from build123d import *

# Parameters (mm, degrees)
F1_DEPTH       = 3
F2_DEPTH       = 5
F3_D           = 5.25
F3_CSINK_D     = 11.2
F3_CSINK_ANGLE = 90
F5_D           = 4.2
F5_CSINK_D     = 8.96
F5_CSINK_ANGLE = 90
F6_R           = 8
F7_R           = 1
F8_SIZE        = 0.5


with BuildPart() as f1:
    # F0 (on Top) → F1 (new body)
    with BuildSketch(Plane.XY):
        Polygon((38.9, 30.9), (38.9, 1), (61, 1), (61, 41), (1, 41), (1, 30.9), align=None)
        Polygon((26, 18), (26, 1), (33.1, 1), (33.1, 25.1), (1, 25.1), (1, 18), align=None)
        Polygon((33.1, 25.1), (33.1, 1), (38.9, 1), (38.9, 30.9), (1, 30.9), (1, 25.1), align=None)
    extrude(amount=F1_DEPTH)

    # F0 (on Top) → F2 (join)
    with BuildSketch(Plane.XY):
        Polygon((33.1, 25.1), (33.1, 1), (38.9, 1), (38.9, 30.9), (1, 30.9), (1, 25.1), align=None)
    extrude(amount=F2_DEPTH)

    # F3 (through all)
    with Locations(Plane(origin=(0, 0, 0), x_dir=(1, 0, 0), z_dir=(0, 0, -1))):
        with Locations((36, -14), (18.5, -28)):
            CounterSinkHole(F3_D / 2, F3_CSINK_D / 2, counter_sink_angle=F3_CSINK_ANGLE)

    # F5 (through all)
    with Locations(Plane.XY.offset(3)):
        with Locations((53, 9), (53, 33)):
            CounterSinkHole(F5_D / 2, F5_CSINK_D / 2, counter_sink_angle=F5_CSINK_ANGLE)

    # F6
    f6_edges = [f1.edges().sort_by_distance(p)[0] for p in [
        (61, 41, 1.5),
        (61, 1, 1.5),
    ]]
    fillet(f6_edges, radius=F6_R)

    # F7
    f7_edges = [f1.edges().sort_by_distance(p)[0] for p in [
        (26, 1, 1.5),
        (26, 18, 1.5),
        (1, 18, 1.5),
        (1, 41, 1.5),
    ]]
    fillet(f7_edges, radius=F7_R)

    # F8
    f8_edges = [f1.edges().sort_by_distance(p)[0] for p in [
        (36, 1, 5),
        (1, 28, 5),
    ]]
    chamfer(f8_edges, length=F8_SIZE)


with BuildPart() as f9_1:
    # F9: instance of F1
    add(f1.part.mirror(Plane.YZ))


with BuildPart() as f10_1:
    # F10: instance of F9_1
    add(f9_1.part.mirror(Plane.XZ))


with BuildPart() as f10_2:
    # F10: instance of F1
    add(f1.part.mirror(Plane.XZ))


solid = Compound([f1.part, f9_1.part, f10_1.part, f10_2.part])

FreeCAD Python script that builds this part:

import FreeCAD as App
import Part
import Sketcher
Q = App.Units.Quantity


def edges_at(feature, points):
    """Names of the edges that pass closest to the given points."""
    edges = feature.Shape.Edges
    near = lambda p: min(range(len(edges)), key=lambda i: edges[i].distToShape(Part.Vertex(*p))[0])
    return sorted({f"Edge{near(p) + 1}" for p in points})


def add_polygon(sketch, points):
    """Adds a closed chain of lines whose ends are joined by coincident constraints."""
    first, n = sketch.GeometryCount, len(points)
    for a, b in zip(points, points[1:] + points[:1]):
        sketch.addGeometry(Part.LineSegment(App.Vector(*a, 0), App.Vector(*b, 0)), False)
    for i in range(n):
        sketch.addConstraint(Sketcher.Constraint("Coincident", first + i, 2, first + (i + 1) % n, 1))

doc = App.newDocument("Part")
params = doc.addObject("Spreadsheet::Sheet", "Params")
for row, (alias, value) in enumerate([
    ("sketch1_width", "60 mm"),
    ("sketch1_width2", "25 mm"),
    ("sketch1_height", "40 mm"),
    ("sketch1_height2", "23 mm"),
    ("pad1_length", "3 mm"),
    ("sketch2_width", "5.8 mm"),
    ("sketch2_width2", "37.9 mm"),
    ("sketch2_height", "24.1 mm"),
    ("pad2_length", "5 mm"),
    ("sketch3_diameter", "5.25 mm"),
    ("hole_diameter", "5.25 mm"),
    ("hole_csink_diameter", "11.2 mm"),
    ("sketch4_diameter", "4.2 mm"),
    ("hole2_diameter", "4.2 mm"),
    ("hole2_csink_diameter", "8.96 mm"),
    ("fillet_radius", "8 mm"),
    ("fillet2_radius", "1 mm"),
    ("chamfer_size", "0.5 mm"),
], start=1):
    params.set(f"A{row}", alias)
    params.set(f"B{row}", "=" + value)
    params.setAlias(f"B{row}", alias)

body = doc.addObject("PartDesign::Body", "Body")

sketch1 = doc.addObject("Sketcher::SketchObject", "Sketch")
body.addObject(sketch1)
sketch1.AttachmentSupport = (doc.XY_Plane, [""])
sketch1.MapMode = "FlatFace"
add_polygon(sketch1, [(61, 1), (61, 41), (1, 41), (1, 18), (26, 18), (26, 1)])
sketch1.addConstraint(Sketcher.Constraint("Vertical", 0))
sketch1.addConstraint(Sketcher.Constraint("Horizontal", 1))
sketch1.addConstraint(Sketcher.Constraint("Vertical", 2))
sketch1.addConstraint(Sketcher.Constraint("Horizontal", 3))
sketch1.addConstraint(Sketcher.Constraint("Vertical", 4))
sketch1.addConstraint(Sketcher.Constraint("Horizontal", 5))
sketch1.addConstraint(Sketcher.Constraint("DistanceX", 1, 2, 1, 1, Q("60 mm")))
sketch1.addConstraint(Sketcher.Constraint("DistanceX", 3, 1, 3, 2, Q("25 mm")))
sketch1.addConstraint(Sketcher.Constraint("DistanceY", 0, 1, 0, 2, Q("40 mm")))
sketch1.addConstraint(Sketcher.Constraint("DistanceY", 2, 2, 2, 1, Q("23 mm")))
sketch1.addConstraint(Sketcher.Constraint("DistanceX", -1, 1, 0, 2, Q("61 mm")))
sketch1.addConstraint(Sketcher.Constraint("DistanceY", -1, 1, 0, 2, Q("41 mm")))
sketch1.setExpression("Constraints[12]", "Params.sketch1_width")
sketch1.setExpression("Constraints[13]", "Params.sketch1_width2")
sketch1.setExpression("Constraints[14]", "Params.sketch1_height")
sketch1.setExpression("Constraints[15]", "Params.sketch1_height2")
pad1 = doc.addObject("PartDesign::Pad", "Pad")
body.addObject(pad1)
pad1.Profile = sketch1
pad1.setExpression("Length", "Params.pad1_length")

sketch2 = doc.addObject("Sketcher::SketchObject", "Sketch001")
body.addObject(sketch2)
sketch2.AttachmentSupport = (doc.XY_Plane, [""])
sketch2.MapMode = "FlatFace"
add_polygon(sketch2, [(33.1, 25.1), (33.1, 1), (38.9, 1), (38.9, 30.9), (1, 30.9), (1, 25.1)])
sketch2.addConstraint(Sketcher.Constraint("Vertical", 0))
sketch2.addConstraint(Sketcher.Constraint("Horizontal", 1))
sketch2.addConstraint(Sketcher.Constraint("Vertical", 2))
sketch2.addConstraint(Sketcher.Constraint("Horizontal", 3))
sketch2.addConstraint(Sketcher.Constraint("Vertical", 4))
sketch2.addConstraint(Sketcher.Constraint("Horizontal", 5))
sketch2.addConstraint(Sketcher.Constraint("Equal", 1, 4))
sketch2.addConstraint(Sketcher.Constraint("DistanceX", 1, 1, 1, 2, Q("5.8 mm")))
sketch2.addConstraint(Sketcher.Constraint("DistanceX", 3, 2, 3, 1, Q("37.9 mm")))
sketch2.addConstraint(Sketcher.Constraint("DistanceY", 0, 2, 0, 1, Q("24.1 mm")))
sketch2.addConstraint(Sketcher.Constraint("DistanceY", -1, 1, 0, 2, Q("1 mm")))
sketch2.addConstraint(Sketcher.Constraint("DistanceX", -1, 1, 3, 2, Q("1 mm")))
sketch2.setExpression("Constraints[13]", "Params.sketch2_width")
sketch2.setExpression("Constraints[14]", "Params.sketch2_width2")
sketch2.setExpression("Constraints[15]", "Params.sketch2_height")
pad2 = doc.addObject("PartDesign::Pad", "Pad001")
body.addObject(pad2)
pad2.Profile = sketch2
pad2.setExpression("Length", "Params.pad2_length")

sketch3 = doc.addObject("Sketcher::SketchObject", "Sketch002")
body.addObject(sketch3)
sketch3.AttachmentSupport = (doc.XY_Plane, [""])
sketch3.MapMode = "FlatFace"
sketch3.addGeometry(Part.Circle(App.Vector(36, 14, 0), App.Vector(0, 0, 1), 2.625), False)
sketch3.addGeometry(Part.Circle(App.Vector(18.5, 28, 0), App.Vector(0, 0, 1), 2.625), False)
sketch3.addConstraint(Sketcher.Constraint("Equal", 0, 1))
sketch3.addConstraint(Sketcher.Constraint("Diameter", 0, Q("5.25 mm")))
sketch3.addConstraint(Sketcher.Constraint("DistanceX", -1, 1, 0, 3, Q("36 mm")))
sketch3.addConstraint(Sketcher.Constraint("DistanceY", -1, 1, 0, 3, Q("14 mm")))
sketch3.addConstraint(Sketcher.Constraint("DistanceY", -1, 1, 1, 3, Q("28 mm")))
sketch3.addConstraint(Sketcher.Constraint("DistanceX", -1, 1, 1, 3, Q("18.5 mm")))
sketch3.setExpression("Constraints[1]", "Params.sketch3_diameter")
doc.recompute()
hole = doc.addObject("PartDesign::Hole", "Hole")
body.addObject(hole)
hole.Profile = sketch3
hole.ThreadType = "None"
hole.setExpression("Diameter", "Params.hole_diameter")
hole.DepthType = "ThroughAll"
hole.HoleCutType = "Countersink"
hole.setExpression("HoleCutDiameter", "Params.hole_csink_diameter")
hole.HoleCutCountersinkAngle = 90
hole.Reversed = True

sketch4 = doc.addObject("Sketcher::SketchObject", "Sketch003")
body.addObject(sketch4)
sketch4.AttachmentSupport = (doc.XY_Plane, [""])
sketch4.MapMode = "FlatFace"
sketch4.AttachmentOffset = App.Placement(App.Vector(0, 0, 3), App.Rotation())
sketch4.addGeometry(Part.Circle(App.Vector(53, 9, 0), App.Vector(0, 0, 1), 2.1), False)
sketch4.addGeometry(Part.Circle(App.Vector(53, 33, 0), App.Vector(0, 0, 1), 2.1), False)
sketch4.addConstraint(Sketcher.Constraint("Equal", 0, 1))
sketch4.addConstraint(Sketcher.Constraint("Vertical", 0, 3, 1, 3))
sketch4.addConstraint(Sketcher.Constraint("Diameter", 0, Q("4.2 mm")))
sketch4.addConstraint(Sketcher.Constraint("DistanceX", -1, 1, 0, 3, Q("53 mm")))
sketch4.addConstraint(Sketcher.Constraint("DistanceY", -1, 1, 0, 3, Q("9 mm")))
sketch4.addConstraint(Sketcher.Constraint("DistanceY", -1, 1, 1, 3, Q("33 mm")))
sketch4.setExpression("Constraints[2]", "Params.sketch4_diameter")
doc.recompute()
hole2 = doc.addObject("PartDesign::Hole", "Hole001")
body.addObject(hole2)
hole2.Profile = sketch4
hole2.ThreadType = "None"
hole2.setExpression("Diameter", "Params.hole2_diameter")
hole2.DepthType = "ThroughAll"
hole2.HoleCutType = "Countersink"
hole2.setExpression("HoleCutDiameter", "Params.hole2_csink_diameter")
hole2.HoleCutCountersinkAngle = 90
doc.recompute()

fillet = doc.addObject("PartDesign::Fillet", "Fillet")
body.addObject(fillet)
fillet.Base = (hole2, edges_at(hole2, [(61, 41, 1.5), (61, 1, 1.5)]))
fillet.setExpression("Radius", "Params.fillet_radius")
doc.recompute()

fillet2 = doc.addObject("PartDesign::Fillet", "Fillet001")
body.addObject(fillet2)
fillet2.Base = (fillet, edges_at(fillet, [
    (26, 1, 1.5),
    (26, 18, 1.5),
    (1, 18, 1.5),
    (1, 41, 1.5),
]))
fillet2.setExpression("Radius", "Params.fillet2_radius")
doc.recompute()

chamfer = doc.addObject("PartDesign::Chamfer", "Chamfer")
body.addObject(chamfer)
chamfer.Base = (fillet2, edges_at(fillet2, [(36, 1, 5), (1, 28, 5)]))
chamfer.setExpression("Size", "Params.chamfer_size")
body2 = doc.addObject("PartDesign::Body", "Body001")
doc.recompute()

mirroring = doc.addObject("Part::Mirroring", "Mirroring")
mirroring.Source = body
mirroring.Base = App.Vector(0, 0, 0)
mirroring.Normal = App.Vector(1, 0, 0)
body2.BaseFeature = mirroring
doc.recompute()
body3 = doc.addObject("PartDesign::Body", "Body002")
doc.recompute()

mirroring2 = doc.addObject("Part::Mirroring", "Mirroring001")
mirroring2.Source = body2
mirroring2.Base = App.Vector(0, 0, 0)
mirroring2.Normal = App.Vector(0, -1, 0)
body3.BaseFeature = mirroring2
doc.recompute()
body4 = doc.addObject("PartDesign::Body", "Body003")
doc.recompute()

mirroring3 = doc.addObject("Part::Mirroring", "Mirroring002")
mirroring3.Source = body
mirroring3.Base = App.Vector(0, 0, 0)
mirroring3.Normal = App.Vector(0, -1, 0)
body4.BaseFeature = mirroring3
doc.recompute()
mirroring.Visibility = False
mirroring2.Visibility = False
mirroring3.Visibility = False

doc.recompute()
